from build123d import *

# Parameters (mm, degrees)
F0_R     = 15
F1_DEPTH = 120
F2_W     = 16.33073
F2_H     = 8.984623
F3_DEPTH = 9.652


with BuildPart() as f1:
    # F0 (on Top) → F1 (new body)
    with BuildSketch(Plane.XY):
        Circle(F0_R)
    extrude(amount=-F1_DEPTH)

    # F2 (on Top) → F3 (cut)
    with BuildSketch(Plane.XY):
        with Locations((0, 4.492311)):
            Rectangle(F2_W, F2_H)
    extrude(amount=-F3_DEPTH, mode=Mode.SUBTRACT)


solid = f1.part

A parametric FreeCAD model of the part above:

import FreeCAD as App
import Part
import Sketcher
from FreeCAD import Vector


def add_polygon(sketch, points):
    """Adds a closed chain of lines whose ends are joined by coincident constraints."""
    first, n = sketch.GeometryCount, len(points)
    for a, b in zip(points, points[1:] + points[:1]):
        sketch.addGeometry(Part.LineSegment(App.Vector(*a, 0), App.Vector(*b, 0)), False)
    for i in range(n):
        sketch.addConstraint(Sketcher.Constraint("Coincident", first + i, 2, first + (i + 1) % n, 1))

doc = App.newDocument("Part")
body = doc.addObject("PartDesign::Body", "Body")

sketch1 = doc.addObject("Sketcher::SketchObject", "Sketch")
body.addObject(sketch1)
sketch1.AttachmentSupport = (doc.XY_Plane, [""])
sketch1.MapMode = "FlatFace"
sketch1.addGeometry(Part.Circle(Vector(0, 0, 0), Vector(0, 0, 1), 15), False)
sketch1.addConstraint([
    Sketcher.Constraint("Coincident", 0, 3, -1, 1),
    Sketcher.Constraint("Diameter", 0, 30.0),
])
pad1 = doc.addObject("PartDesign::Pad", "Pad")
body.addObject(pad1)
pad1.Profile = sketch1
pad1.Length = 120
pad1.Reversed = True

sketch2 = doc.addObject("Sketcher::SketchObject", "Sketch001")
body.addObject(sketch2)
sketch2.AttachmentSupport = (doc.XY_Plane, [""])
sketch2.MapMode = "FlatFace"
add_polygon(sketch2, [(-8, 9), (-8, 0), (8, 0), (8, 9)])
sketch2.addConstraint([
    Sketcher.Constraint("Vertical", 0),
    Sketcher.Constraint("Horizontal", 1),
    Sketcher.Constraint("Vertical", 2),
    Sketcher.Constraint("Horizontal", 3),
    Sketcher.Constraint("Symmetric", 0, 2, 1, 2, -1, 1),
    Sketcher.Constraint("DistanceX", 1, 1, 1, 2, 16.33073),
    Sketcher.Constraint("DistanceY", 0, 2, 0, 1, 8.984623),
])
pocket1 = doc.addObject("PartDesign::Pocket", "Pocket")
body.addObject(pocket1)
pocket1.Profile = sketch2
pocket1.Length = 9.652

doc.recompute()
